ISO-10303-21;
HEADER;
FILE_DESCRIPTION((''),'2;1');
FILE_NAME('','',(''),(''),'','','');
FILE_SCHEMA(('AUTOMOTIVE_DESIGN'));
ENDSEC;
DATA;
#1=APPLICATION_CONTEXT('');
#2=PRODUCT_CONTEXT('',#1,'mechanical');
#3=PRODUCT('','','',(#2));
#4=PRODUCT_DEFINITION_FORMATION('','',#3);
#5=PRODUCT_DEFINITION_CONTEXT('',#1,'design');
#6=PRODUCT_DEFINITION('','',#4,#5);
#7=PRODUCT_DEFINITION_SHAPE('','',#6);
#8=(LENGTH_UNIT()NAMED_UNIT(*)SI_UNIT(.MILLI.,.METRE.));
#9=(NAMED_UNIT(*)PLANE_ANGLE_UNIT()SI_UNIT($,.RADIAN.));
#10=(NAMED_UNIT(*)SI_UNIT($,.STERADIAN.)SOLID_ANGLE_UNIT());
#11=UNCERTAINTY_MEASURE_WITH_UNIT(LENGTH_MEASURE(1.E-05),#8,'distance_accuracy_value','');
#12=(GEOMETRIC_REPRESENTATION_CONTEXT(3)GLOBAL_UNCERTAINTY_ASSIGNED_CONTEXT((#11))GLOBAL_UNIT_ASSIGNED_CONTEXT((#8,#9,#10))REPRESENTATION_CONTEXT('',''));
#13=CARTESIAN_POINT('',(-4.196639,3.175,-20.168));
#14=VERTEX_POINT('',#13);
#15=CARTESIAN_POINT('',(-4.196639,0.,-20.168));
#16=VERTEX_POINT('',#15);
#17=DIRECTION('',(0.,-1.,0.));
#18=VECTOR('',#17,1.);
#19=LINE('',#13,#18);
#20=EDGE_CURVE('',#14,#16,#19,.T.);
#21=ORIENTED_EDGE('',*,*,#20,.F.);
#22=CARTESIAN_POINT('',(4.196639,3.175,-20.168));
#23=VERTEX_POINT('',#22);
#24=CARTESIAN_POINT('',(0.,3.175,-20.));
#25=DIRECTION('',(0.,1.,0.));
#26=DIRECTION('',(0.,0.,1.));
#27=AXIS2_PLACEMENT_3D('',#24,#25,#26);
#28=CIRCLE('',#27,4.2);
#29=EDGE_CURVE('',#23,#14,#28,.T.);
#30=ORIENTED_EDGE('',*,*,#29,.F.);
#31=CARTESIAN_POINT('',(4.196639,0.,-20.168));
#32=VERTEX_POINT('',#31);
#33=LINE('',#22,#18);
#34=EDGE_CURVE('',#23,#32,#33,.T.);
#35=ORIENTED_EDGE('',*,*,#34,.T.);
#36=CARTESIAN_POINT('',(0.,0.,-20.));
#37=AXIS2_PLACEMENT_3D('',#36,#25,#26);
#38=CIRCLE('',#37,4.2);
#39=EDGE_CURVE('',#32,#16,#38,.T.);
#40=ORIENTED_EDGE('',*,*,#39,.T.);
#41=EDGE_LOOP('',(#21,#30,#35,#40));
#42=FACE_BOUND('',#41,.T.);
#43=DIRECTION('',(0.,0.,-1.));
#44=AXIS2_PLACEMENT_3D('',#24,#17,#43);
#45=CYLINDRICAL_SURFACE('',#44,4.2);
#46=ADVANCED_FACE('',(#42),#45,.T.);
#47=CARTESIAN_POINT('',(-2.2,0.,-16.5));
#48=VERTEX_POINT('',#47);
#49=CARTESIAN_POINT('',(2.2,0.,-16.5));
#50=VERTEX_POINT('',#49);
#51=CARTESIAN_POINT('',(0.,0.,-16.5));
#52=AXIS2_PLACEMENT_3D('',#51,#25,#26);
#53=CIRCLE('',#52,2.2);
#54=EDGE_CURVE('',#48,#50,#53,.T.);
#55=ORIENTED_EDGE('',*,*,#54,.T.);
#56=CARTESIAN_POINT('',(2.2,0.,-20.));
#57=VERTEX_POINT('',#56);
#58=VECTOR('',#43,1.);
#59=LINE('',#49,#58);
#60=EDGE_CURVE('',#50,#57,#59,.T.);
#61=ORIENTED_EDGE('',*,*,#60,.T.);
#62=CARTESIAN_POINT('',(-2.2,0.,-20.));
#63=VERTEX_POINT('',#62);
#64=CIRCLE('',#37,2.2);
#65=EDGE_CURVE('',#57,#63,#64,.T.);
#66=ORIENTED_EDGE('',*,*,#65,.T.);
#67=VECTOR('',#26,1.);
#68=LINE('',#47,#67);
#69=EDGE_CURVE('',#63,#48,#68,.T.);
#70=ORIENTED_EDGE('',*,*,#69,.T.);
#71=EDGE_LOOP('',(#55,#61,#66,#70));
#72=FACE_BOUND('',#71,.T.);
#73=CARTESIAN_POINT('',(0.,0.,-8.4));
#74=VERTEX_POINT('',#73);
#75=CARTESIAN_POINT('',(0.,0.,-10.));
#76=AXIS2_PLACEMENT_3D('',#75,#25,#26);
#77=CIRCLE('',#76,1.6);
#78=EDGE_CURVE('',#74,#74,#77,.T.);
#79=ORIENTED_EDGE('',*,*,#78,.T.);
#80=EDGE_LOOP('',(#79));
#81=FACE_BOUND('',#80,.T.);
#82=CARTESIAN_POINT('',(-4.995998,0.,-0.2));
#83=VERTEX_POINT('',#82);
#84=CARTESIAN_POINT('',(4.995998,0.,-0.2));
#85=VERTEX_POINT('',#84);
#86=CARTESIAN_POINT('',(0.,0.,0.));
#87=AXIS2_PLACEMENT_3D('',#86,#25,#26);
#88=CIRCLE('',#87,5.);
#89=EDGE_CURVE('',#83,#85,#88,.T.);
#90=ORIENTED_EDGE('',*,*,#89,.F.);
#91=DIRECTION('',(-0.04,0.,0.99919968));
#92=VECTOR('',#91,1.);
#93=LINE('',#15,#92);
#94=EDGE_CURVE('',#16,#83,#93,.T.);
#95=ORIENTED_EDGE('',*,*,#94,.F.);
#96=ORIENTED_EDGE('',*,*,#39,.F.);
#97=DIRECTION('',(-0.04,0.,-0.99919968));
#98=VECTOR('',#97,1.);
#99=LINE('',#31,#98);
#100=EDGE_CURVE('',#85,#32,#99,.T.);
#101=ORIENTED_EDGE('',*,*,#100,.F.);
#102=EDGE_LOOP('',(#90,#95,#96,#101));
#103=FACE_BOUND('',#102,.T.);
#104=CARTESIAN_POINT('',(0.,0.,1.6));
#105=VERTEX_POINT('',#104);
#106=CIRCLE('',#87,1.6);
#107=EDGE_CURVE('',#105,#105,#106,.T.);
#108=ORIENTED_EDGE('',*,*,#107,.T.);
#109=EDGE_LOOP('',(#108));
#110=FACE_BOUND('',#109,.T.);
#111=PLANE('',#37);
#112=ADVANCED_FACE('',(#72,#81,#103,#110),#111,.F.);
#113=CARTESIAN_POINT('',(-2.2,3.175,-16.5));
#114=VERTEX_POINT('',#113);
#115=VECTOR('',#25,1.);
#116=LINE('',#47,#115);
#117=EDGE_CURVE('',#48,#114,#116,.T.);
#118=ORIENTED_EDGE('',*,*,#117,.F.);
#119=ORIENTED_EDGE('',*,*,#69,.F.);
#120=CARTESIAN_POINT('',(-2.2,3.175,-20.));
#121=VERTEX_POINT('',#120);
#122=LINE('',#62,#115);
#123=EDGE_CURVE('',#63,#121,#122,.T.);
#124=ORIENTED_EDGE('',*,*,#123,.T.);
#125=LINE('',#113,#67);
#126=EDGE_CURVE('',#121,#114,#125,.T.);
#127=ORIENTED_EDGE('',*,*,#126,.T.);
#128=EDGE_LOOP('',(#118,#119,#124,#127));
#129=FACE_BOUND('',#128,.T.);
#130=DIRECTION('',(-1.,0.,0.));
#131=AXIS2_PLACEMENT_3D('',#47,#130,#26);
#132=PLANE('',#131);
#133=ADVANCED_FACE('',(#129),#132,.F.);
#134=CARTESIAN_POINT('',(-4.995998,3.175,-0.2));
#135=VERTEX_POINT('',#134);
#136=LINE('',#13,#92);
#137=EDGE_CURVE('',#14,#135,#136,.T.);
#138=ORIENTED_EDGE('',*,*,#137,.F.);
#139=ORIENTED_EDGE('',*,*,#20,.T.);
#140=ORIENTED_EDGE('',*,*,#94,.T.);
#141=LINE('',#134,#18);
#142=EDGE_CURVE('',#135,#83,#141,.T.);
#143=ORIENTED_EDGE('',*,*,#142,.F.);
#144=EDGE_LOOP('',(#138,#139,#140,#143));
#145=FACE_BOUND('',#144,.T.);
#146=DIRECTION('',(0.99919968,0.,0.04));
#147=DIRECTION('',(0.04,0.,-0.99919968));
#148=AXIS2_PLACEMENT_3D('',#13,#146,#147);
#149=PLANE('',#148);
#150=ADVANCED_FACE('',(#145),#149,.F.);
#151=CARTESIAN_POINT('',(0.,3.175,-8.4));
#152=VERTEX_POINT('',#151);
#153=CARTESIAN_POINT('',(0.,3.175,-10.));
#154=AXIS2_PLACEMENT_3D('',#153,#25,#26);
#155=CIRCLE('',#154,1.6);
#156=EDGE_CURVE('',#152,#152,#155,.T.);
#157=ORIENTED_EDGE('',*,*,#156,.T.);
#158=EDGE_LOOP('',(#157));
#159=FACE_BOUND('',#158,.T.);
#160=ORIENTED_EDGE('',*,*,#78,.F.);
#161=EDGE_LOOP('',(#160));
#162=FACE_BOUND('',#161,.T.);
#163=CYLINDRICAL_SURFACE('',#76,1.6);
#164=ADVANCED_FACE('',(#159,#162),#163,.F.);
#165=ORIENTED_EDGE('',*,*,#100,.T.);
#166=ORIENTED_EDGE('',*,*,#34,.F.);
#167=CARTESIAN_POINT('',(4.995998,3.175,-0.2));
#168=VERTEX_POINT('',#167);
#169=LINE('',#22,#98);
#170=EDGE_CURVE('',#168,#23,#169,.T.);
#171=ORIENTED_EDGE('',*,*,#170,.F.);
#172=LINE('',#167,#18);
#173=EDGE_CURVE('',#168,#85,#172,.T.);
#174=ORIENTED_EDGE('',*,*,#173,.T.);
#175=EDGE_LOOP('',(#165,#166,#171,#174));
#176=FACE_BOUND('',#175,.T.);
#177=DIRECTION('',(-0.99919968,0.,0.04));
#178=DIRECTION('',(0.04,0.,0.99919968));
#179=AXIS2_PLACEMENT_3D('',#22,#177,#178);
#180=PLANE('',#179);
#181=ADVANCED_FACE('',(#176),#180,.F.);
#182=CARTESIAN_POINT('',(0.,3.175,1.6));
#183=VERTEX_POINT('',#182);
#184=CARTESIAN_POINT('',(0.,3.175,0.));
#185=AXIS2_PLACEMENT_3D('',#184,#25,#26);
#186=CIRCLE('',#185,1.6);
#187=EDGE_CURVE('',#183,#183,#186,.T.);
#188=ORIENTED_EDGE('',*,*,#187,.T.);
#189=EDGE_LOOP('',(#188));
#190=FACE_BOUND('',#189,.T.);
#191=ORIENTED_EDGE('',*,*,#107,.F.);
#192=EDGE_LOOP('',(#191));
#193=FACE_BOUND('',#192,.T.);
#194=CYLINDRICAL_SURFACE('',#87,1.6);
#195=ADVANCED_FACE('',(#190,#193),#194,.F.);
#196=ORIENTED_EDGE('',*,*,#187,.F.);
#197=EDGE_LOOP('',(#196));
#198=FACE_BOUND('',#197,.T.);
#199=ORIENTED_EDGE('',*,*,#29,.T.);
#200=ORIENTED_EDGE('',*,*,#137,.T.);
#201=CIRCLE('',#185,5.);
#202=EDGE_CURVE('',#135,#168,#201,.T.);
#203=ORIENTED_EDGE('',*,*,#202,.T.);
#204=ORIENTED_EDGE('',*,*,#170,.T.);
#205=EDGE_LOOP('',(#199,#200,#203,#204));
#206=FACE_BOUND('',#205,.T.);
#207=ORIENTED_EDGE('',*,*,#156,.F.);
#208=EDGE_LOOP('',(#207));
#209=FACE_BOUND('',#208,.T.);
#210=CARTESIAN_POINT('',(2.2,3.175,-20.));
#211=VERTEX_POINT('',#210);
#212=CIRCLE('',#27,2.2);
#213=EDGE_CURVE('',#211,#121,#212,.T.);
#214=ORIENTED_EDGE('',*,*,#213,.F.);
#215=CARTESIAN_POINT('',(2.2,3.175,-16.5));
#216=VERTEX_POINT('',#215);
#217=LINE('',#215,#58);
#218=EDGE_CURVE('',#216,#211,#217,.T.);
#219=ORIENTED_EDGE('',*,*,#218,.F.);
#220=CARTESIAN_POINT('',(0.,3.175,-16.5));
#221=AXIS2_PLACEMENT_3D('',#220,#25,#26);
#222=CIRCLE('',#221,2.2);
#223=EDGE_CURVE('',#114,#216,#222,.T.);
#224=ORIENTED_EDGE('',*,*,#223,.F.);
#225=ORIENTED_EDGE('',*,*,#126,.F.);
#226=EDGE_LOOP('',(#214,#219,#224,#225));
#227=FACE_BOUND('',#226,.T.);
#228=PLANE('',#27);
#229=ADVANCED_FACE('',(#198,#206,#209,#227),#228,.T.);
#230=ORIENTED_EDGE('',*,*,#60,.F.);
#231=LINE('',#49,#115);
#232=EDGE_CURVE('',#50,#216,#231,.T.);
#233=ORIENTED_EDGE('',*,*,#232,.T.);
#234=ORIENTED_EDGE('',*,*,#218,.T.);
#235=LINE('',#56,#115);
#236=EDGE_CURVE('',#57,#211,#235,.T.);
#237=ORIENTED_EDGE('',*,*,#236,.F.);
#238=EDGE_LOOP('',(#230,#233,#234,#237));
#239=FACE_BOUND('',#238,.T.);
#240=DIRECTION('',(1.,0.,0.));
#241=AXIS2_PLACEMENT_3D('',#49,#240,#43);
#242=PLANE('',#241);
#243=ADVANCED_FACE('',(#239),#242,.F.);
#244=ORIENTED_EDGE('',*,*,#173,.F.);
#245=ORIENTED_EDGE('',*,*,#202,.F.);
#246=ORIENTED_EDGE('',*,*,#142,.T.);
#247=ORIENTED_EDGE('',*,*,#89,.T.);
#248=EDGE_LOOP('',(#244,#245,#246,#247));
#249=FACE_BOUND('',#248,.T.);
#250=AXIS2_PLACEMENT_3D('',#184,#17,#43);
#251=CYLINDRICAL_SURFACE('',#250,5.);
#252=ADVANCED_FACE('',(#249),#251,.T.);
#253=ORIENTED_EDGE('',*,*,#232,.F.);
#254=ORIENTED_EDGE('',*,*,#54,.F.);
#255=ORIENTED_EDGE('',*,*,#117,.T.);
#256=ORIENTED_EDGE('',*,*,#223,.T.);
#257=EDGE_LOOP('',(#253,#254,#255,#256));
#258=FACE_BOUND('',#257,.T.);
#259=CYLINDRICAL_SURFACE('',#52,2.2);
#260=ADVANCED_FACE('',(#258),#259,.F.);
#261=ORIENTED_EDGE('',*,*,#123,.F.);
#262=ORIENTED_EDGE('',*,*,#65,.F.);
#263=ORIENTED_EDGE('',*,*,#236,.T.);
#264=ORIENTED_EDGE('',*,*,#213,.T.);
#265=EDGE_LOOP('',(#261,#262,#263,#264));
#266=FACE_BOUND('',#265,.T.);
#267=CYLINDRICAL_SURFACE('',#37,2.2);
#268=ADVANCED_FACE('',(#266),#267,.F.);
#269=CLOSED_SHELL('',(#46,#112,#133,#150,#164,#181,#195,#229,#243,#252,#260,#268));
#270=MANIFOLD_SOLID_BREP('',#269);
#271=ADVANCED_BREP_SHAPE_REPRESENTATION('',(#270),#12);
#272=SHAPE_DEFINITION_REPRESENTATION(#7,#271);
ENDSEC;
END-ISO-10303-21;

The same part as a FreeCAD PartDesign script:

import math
import FreeCAD as App
import Part
import Sketcher
from FreeCAD import Vector
Q = App.Units.Quantity

doc = App.newDocument("Part")
body = doc.addObject("PartDesign::Body", "Body")

# Sketch on XZ plane
sketch1 = body.newObject("Sketcher::SketchObject", "Sketch")
sketch1.AttachmentSupport = (doc.getObject("XZ_Plane"), [""])
sketch1.MapMode = "FlatFace"
sketch1.addGeometry(Part.LineSegment(Vector(-4.2, -20.2, 0), Vector(-5, -0.2, 0)), False)
sketch1.addGeometry(Part.ArcOfCircle(Part.Circle(Vector(0, 0, 0), Vector(0, 0, 1), 5), math.radians(-2), math.radians(182)), False)
sketch1.addGeometry(Part.LineSegment(Vector(5, -0.2, 0), Vector(4.2, -20.2, 0)), False)
sketch1.addGeometry(Part.ArcOfCircle(Part.Circle(Vector(0, -20, 0), Vector(0, 0, 1), 4.2), math.radians(-178), math.radians(-2)), False)
sketch1.addConstraint(Sketcher.Constraint("Tangent", 0, 2, 1, 2))
sketch1.addConstraint(Sketcher.Constraint("Tangent", 1, 1, 2, 1))
sketch1.addConstraint(Sketcher.Constraint("Tangent", 2, 2, 3, 2))
sketch1.addConstraint(Sketcher.Constraint("Tangent", 3, 1, 0, 1))
sketch1.addConstraint(Sketcher.Constraint("Coincident", 1, 3, -1, 1))
sketch1.addConstraint(Sketcher.Constraint("PointOnObject", 3, 3, -2))
sketch1.addConstraint(Sketcher.Constraint("Radius", 1, Q("5 mm")))
sketch1.addConstraint(Sketcher.Constraint("Radius", 3, Q("4.2 mm")))
sketch1.addConstraint(Sketcher.Constraint("DistanceY", 3, 3, -1, 1, Q("20 mm")))
pad1 = body.newObject("PartDesign::Pad", "Pad")
pad1.Profile = sketch1
pad1.Length = 3.175
pad1.Reversed = True

# Sketch on XZ plane
sketch2 = body.newObject("Sketcher::SketchObject", "Sketch001")
sketch2.AttachmentSupport = (doc.getObject("XZ_Plane"), [""])
sketch2.MapMode = "FlatFace"
sketch2.AttachmentOffset = App.Placement(Vector(0, 0, -3.175), App.Rotation())
sketch2.addGeometry(Part.Circle(Vector(0, 0, 0), Vector(0, 0, 1), 1.6), False)
sketch2.addGeometry(Part.Circle(Vector(0, -10, 0), Vector(0, 0, 1), 1.6), False)
sketch2.addConstraint(Sketcher.Constraint("Coincident", 0, 3, -1, 1))
sketch2.addConstraint(Sketcher.Constraint("Equal", 0, 1))
sketch2.addConstraint(Sketcher.Constraint("PointOnObject", 1, 3, -2))
sketch2.addConstraint(Sketcher.Constraint("Diameter", 0, Q("3.2 mm")))
sketch2.addConstraint(Sketcher.Constraint("DistanceY", 1, 3, -1, 1, Q("10 mm")))
pocket1 = body.newObject("PartDesign::Pocket", "Pocket")
pocket1.Profile = sketch2
pocket1.Type = "ThroughAll"
pocket1.Reversed = True

# Sketch on XZ plane
sketch3 = body.newObject("Sketcher::SketchObject", "Sketch002")
sketch3.AttachmentSupport = (doc.getObject("XZ_Plane"), [""])
sketch3.MapMode = "FlatFace"
sketch3.AttachmentOffset = App.Placement(Vector(0, 0, -3.175), App.Rotation())
sketch3.addGeometry(Part.LineSegment(Vector(-2.2, -20, 0), Vector(-2.2, -16.5, 0)), False)
sketch3.addGeometry(Part.ArcOfCircle(Part.Circle(Vector(0, -16.5, 0), Vector(0, 0, 1), 2.2), math.radians(0), math.radians(180)), False)
sketch3.addGeometry(Part.LineSegment(Vector(2.2, -16.5, 0), Vector(2.2, -20, 0)), False)
sketch3.addGeometry(Part.ArcOfCircle(Part.Circle(Vector(0, -20, 0), Vector(0, 0, 1), 2.2), math.radians(180), math.radians(360)), False)
sketch3.addConstraint(Sketcher.Constraint("Tangent", 0, 2, 1, 2))
sketch3.addConstraint(Sketcher.Constraint("Tangent", 1, 1, 2, 1))
sketch3.addConstraint(Sketcher.Constraint("Tangent", 2, 2, 3, 2))
sketch3.addConstraint(Sketcher.Constraint("Tangent", 3, 1, 0, 1))
sketch3.addConstraint(Sketcher.Constraint("Vertical", 0))
sketch3.addConstraint(Sketcher.Constraint("Vertical", 2))
sketch3.addConstraint(Sketcher.Constraint("PointOnObject", 1, 3, -2))
sketch3.addConstraint(Sketcher.Constraint("Radius", 1, Q("2.2 mm")))
sketch3.addConstraint(Sketcher.Constraint("DistanceY", 0, 1, 0, 2, Q("3.5 mm")))
sketch3.addConstraint(Sketcher.Constraint("DistanceY", 3, 3, -1, 1, Q("20 mm")))
pocket2 = body.newObject("PartDesign::Pocket", "Pocket001")
pocket2.Profile = sketch3
pocket2.Type = "ThroughAll"
pocket2.Reversed = True

doc.recompute()
